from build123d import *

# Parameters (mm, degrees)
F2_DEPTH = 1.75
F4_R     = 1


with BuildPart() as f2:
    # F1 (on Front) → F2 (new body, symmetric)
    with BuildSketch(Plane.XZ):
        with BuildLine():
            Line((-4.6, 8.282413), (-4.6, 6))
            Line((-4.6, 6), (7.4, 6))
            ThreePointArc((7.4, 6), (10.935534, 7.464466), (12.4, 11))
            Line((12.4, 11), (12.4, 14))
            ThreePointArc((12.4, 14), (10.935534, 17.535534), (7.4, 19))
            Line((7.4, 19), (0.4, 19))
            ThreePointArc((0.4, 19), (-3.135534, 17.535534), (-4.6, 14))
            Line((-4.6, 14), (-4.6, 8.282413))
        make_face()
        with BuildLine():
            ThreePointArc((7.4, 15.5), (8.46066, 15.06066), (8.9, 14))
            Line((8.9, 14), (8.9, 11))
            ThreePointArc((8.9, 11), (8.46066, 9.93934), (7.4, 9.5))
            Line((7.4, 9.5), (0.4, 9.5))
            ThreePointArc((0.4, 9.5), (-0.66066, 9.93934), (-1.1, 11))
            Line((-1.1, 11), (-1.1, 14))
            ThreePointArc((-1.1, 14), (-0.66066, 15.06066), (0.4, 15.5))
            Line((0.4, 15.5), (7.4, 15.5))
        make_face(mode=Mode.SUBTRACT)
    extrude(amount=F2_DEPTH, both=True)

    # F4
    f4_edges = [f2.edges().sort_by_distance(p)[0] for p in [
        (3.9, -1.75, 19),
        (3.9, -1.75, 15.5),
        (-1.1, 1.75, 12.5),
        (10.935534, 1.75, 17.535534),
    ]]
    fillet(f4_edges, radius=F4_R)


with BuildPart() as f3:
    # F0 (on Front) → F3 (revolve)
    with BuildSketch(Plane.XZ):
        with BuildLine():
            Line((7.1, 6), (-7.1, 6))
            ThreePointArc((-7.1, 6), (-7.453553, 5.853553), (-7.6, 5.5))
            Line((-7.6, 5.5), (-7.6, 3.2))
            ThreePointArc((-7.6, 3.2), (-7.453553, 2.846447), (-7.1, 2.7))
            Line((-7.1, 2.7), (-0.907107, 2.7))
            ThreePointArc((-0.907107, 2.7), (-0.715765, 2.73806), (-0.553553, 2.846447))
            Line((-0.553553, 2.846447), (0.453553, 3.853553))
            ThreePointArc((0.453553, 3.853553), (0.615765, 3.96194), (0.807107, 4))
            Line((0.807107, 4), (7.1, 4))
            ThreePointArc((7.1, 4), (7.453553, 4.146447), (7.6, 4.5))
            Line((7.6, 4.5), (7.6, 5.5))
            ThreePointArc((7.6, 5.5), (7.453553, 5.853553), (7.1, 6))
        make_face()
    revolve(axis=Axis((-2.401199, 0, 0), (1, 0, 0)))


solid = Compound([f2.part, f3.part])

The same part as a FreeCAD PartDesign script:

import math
import FreeCAD as App
import Part
import Sketcher
Q = App.Units.Quantity


def edges_at(feature, points):
    """Names of the edges that pass closest to the given points."""
    edges = feature.Shape.Edges
    near = lambda p: min(range(len(edges)), key=lambda i: edges[i].distToShape(Part.Vertex(*p))[0])
    return sorted({f"Edge{near(p) + 1}" for p in points})

doc = App.newDocument("Part")
params = doc.addObject("Spreadsheet::Sheet", "Params")
for row, (alias, value) in enumerate([
    ("sketch1_radius", "5 mm"),
    ("sketch1_radius2", "1.500001 mm"),
    ("sketch1_width", "12 mm"),
    ("sketch1_height", "3 mm"),
    ("pad1_length", "3.5 mm"),
    ("fillet_radius", "1 mm"),
    ("sketch2_radius", "0.500001 mm"),
    ("sketch2_height", "1 mm"),
    ("sketch2_width", "14.2 mm"),
    ("sketch2_height2", "2.3 mm"),
    ("revolution_angle", "360 deg"),
], start=1):
    params.set(f"A{row}", alias)
    params.set(f"B{row}", "=" + value)
    params.setAlias(f"B{row}", alias)

body = doc.addObject("PartDesign::Body", "Body")

# Sketch on XZ plane
sketch1 = doc.addObject("Sketcher::SketchObject", "Sketch")
body.addObject(sketch1)
sketch1.AttachmentSupport = (doc.XZ_Plane, [""])
sketch1.MapMode = "FlatFace"
sketch1.addGeometry([
    Part.LineSegment(App.Vector(-4.6, 6, 0), App.Vector(7.4, 6, 0)),  # 0
    Part.ArcOfCircle(Part.Circle(App.Vector(7.4, 11, 0), App.Vector(0, 0, 1), 5), math.radians(-90), math.radians(0)),  # 1
    Part.LineSegment(App.Vector(12.4, 11, 0), App.Vector(12.4, 14, 0)),  # 2
    Part.ArcOfCircle(Part.Circle(App.Vector(7.4, 14, 0), App.Vector(0, 0, 1), 5), math.radians(0), math.radians(90)),  # 3
    Part.LineSegment(App.Vector(7.4, 19, 0), App.Vector(0.4, 19, 0)),  # 4
    Part.ArcOfCircle(Part.Circle(App.Vector(0.4, 14, 0), App.Vector(0, 0, 1), 5), math.radians(90), math.radians(180)),  # 5
    Part.LineSegment(App.Vector(-4.6, 14, 0), App.Vector(-4.6, 6, 0)),  # 6
    Part.LineSegment(App.Vector(0.4, 15.5, 0), App.Vector(7.4, 15.5, 0)),  # 7
    Part.ArcOfCircle(Part.Circle(App.Vector(7.4, 14, 0), App.Vector(0, 0, 1), 1.5), math.radians(0), math.radians(90)),  # 8
    Part.LineSegment(App.Vector(8.9, 14, 0), App.Vector(8.9, 11, 0)),  # 9
    Part.ArcOfCircle(Part.Circle(App.Vector(7.4, 11, 0), App.Vector(0, 0, 1), 1.5), math.radians(-90), math.radians(0)),  # 10
    Part.LineSegment(App.Vector(7.4, 9.5, 0), App.Vector(0.4, 9.5, 0)),  # 11
    Part.ArcOfCircle(Part.Circle(App.Vector(0.4, 11, 0), App.Vector(0, 0, 1), 1.5), math.radians(-180), math.radians(-90)),  # 12
    Part.LineSegment(App.Vector(-1.1, 11, 0), App.Vector(-1.1, 14, 0)),  # 13
    Part.ArcOfCircle(Part.Circle(App.Vector(0.4, 14, 0), App.Vector(0, 0, 1), 1.5), math.radians(90), math.radians(180)),  # 14
], False)
sketch1.addConstraint([
    Sketcher.Constraint("Tangent", 0, 2, 1, 1),
    Sketcher.Constraint("Tangent", 1, 2, 2, 1),
    Sketcher.Constraint("Tangent", 2, 2, 3, 1),
    Sketcher.Constraint("Tangent", 3, 2, 4, 1),
    Sketcher.Constraint("Tangent", 4, 2, 5, 1),
    Sketcher.Constraint("Tangent", 5, 2, 6, 1),
    Sketcher.Constraint("Coincident", 6, 2, 0, 1),
    Sketcher.Constraint("Tangent", 7, 2, 8, 2),
    Sketcher.Constraint("Tangent", 8, 1, 9, 1),
    Sketcher.Constraint("Tangent", 9, 2, 10, 2),
    Sketcher.Constraint("Tangent", 10, 1, 11, 1),
    Sketcher.Constraint("Tangent", 11, 2, 12, 2),
    Sketcher.Constraint("Tangent", 12, 1, 13, 1),
    Sketcher.Constraint("Tangent", 13, 2, 14, 2),
    Sketcher.Constraint("Tangent", 14, 1, 7, 1),
    Sketcher.Constraint("Horizontal", 0),
    Sketcher.Constraint("Vertical", 2),
    Sketcher.Constraint("Horizontal", 4),
    Sketcher.Constraint("Vertical", 6),
    Sketcher.Constraint("Horizontal", 7),
    Sketcher.Constraint("Vertical", 9),
    Sketcher.Constraint("Horizontal", 11),
    Sketcher.Constraint("Vertical", 13),
    Sketcher.Constraint("Coincident", 8, 3, 3, 3),
    Sketcher.Constraint("Coincident", 10, 3, 1, 3),
    Sketcher.Constraint("Coincident", 14, 3, 5, 3),
    Sketcher.Constraint("Equal", 1, 3),
    Sketcher.Constraint("Equal", 3, 5),
    Sketcher.Constraint("Equal", 10, 12),
    Sketcher.Constraint("Radius", 1, 5.0),
    Sketcher.Constraint("Radius", 8, 1.500001),
    Sketcher.Constraint("DistanceX", 0, 1, 0, 2, 12.0),
    Sketcher.Constraint("DistanceY", 2, 1, 2, 2, 3.0),
    Sketcher.Constraint("DistanceY", -1, 1, 1, 3, 11.0),
    Sketcher.Constraint("DistanceX", -1, 1, 1, 3, 7.4),
])
sketch1.setExpression("Constraints[29]", "Params.sketch1_radius")
sketch1.setExpression("Constraints[30]", "Params.sketch1_radius2")
sketch1.setExpression("Constraints[31]", "Params.sketch1_width")
sketch1.setExpression("Constraints[32]", "Params.sketch1_height")
pad1 = doc.addObject("PartDesign::Pad", "Pad")
body.addObject(pad1)
pad1.Profile = sketch1
pad1.setExpression("Length", "Params.pad1_length")
pad1.Midplane = True
doc.recompute()

fillet = doc.addObject("PartDesign::Fillet", "Fillet")
body.addObject(fillet)
fillet.Base = (pad1, edges_at(pad1, [
    (3.9, -1.75, 19),
    (3.9, -1.75, 15.5),
    (-1.1, 1.75, 12.5),
    (10.936, 1.75, 17.536),
]))
fillet.setExpression("Radius", "Params.fillet_radius")
body2 = doc.addObject("PartDesign::Body", "Body001")

# Sketch on XZ plane
sketch2 = doc.addObject("Sketcher::SketchObject", "Sketch001")
body2.addObject(sketch2)
sketch2.AttachmentSupport = (doc.getObject("XZ_Plane001"), [""])
sketch2.MapMode = "FlatFace"
sketch2.addGeometry([
    Part.LineSegment(App.Vector(7.1, 6, 0), App.Vector(-7.1, 6, 0)),  # 0
    Part.ArcOfCircle(Part.Circle(App.Vector(-7.1, 5.5, 0), App.Vector(0, 0, 1), 0.5), math.radians(90), math.radians(180)),  # 1
    Part.LineSegment(App.Vector(-7.6, 5.5, 0), App.Vector(-7.6, 3.2, 0)),  # 2
    Part.ArcOfCircle(Part.Circle(App.Vector(-7.1, 3.2, 0), App.Vector(0, 0, 1), 0.5), math.radians(-180), math.radians(-90)),  # 3
    Part.LineSegment(App.Vector(-7.1, 2.7, 0), App.Vector(-0.91, 2.7, 0)),  # 4
    Part.ArcOfCircle(Part.Circle(App.Vector(-0.91, 3.2, 0), App.Vector(0, 0, 1), 0.5), math.radians(-90), math.radians(-45)),  # 5
    Part.LineSegment(App.Vector(-0.55, 2.85, 0), App.Vector(0.45, 3.85, 0)),  # 6
    Part.ArcOfCircle(Part.Circle(App.Vector(0.81, 3.5, 0), App.Vector(0, 0, 1), 0.5), math.radians(90), math.radians(135)),  # 7
    Part.LineSegment(App.Vector(0.81, 4, 0), App.Vector(7.1, 4, 0)),  # 8
    Part.ArcOfCircle(Part.Circle(App.Vector(7.1, 4.5, 0), App.Vector(0, 0, 1), 0.5), math.radians(-90), math.radians(0)),  # 9
    Part.LineSegment(App.Vector(7.6, 4.5, 0), App.Vector(7.6, 5.5, 0)),  # 10
    Part.ArcOfCircle(Part.Circle(App.Vector(7.1, 5.5, 0), App.Vector(0, 0, 1), 0.5), math.radians(0), math.radians(90)),  # 11
], False)
sketch2.addConstraint([
    Sketcher.Constraint("Coincident", 0, 2, 1, 1),
    Sketcher.Constraint("Coincident", 1, 2, 2, 1),
    Sketcher.Constraint("Coincident", 2, 2, 3, 1),
    Sketcher.Constraint("Coincident", 3, 2, 4, 1),
    Sketcher.Constraint("Coincident", 4, 2, 5, 1),
    Sketcher.Constraint("Coincident", 5, 2, 6, 1),
    Sketcher.Constraint("Coincident", 6, 2, 7, 2),
    Sketcher.Constraint("Coincident", 7, 1, 8, 1),
    Sketcher.Constraint("Coincident", 8, 2, 9, 1),
    Sketcher.Constraint("Coincident", 9, 2, 10, 1),
    Sketcher.Constraint("Coincident", 10, 2, 11, 1),
    Sketcher.Constraint("Coincident", 11, 2, 0, 1),
    Sketcher.Constraint("Horizontal", 0),
    Sketcher.Constraint("Vertical", 2),
    Sketcher.Constraint("Horizontal", 4),
    Sketcher.Constraint("Horizontal", 8),
    Sketcher.Constraint("Vertical", 10),
    Sketcher.Constraint("Equal", 1, 3),
    Sketcher.Constraint("Equal", 5, 7),
    Sketcher.Constraint("Equal", 3, 9),
    Sketcher.Constraint("Equal", 9, 11),
    Sketcher.Constraint("Symmetric", 1, 2, 10, 2, -2),
    Sketcher.Constraint("Horizontal", 11, 3, 1, 2),
    Sketcher.Constraint("Horizontal", 3, 3, 2, 2),
    Sketcher.Constraint("Vertical", 3, 3, 0, 2),
    Sketcher.Constraint("Vertical", 0, 2, 3, 2),
    Sketcher.Constraint("Vertical", 5, 3, 4, 2),
    Sketcher.Constraint("Vertical", 11, 3, 8, 2),
    Sketcher.Constraint("Vertical", 8, 2, 11, 2),
    Sketcher.Constraint("Radius", 1, 0.500001),
    Sketcher.Constraint("DistanceY", 10, 1, 10, 2, 1.0),
    Sketcher.Constraint("Angle", 6, Q("45 deg")),
    Sketcher.Constraint("DistanceX", 0, 2, 0, 1, 14.2),
    Sketcher.Constraint("DistanceY", 2, 2, 2, 1, 2.3),
    Sketcher.Constraint("DistanceY", -1, 1, 0, 2, 6.0),
    Sketcher.Constraint("DistanceY", -1, 1, 7, 1, 4.0),
    Sketcher.Constraint("DistanceY", 7, 3, 9, 3, 0.999998),
    Sketcher.Constraint("DistanceX", 4, 1, 4, 2, 6.192893),
    Sketcher.Constraint("DistanceX", 8, 1, 8, 2, 6.292893),
    Sketcher.Constraint("DistanceY", 5, 2, 5, 3, 0.35355),
    Sketcher.Constraint("DistanceY", 7, 3, 6, 2, 0.35355),
])
sketch2.setExpression("Constraints[29]", "Params.sketch2_radius")
sketch2.setExpression("Constraints[30]", "Params.sketch2_height")
sketch2.setExpression("Constraints[32]", "Params.sketch2_width")
sketch2.setExpression("Constraints[33]", "Params.sketch2_height2")
revolution = doc.addObject("PartDesign::Revolution", "Revolution")
body2.addObject(revolution)
revolution.Profile = sketch2
revolution.ReferenceAxis = (sketch2, ["H_Axis"])
revolution.setExpression("Angle", "Params.revolution_angle")

doc.recompute()
